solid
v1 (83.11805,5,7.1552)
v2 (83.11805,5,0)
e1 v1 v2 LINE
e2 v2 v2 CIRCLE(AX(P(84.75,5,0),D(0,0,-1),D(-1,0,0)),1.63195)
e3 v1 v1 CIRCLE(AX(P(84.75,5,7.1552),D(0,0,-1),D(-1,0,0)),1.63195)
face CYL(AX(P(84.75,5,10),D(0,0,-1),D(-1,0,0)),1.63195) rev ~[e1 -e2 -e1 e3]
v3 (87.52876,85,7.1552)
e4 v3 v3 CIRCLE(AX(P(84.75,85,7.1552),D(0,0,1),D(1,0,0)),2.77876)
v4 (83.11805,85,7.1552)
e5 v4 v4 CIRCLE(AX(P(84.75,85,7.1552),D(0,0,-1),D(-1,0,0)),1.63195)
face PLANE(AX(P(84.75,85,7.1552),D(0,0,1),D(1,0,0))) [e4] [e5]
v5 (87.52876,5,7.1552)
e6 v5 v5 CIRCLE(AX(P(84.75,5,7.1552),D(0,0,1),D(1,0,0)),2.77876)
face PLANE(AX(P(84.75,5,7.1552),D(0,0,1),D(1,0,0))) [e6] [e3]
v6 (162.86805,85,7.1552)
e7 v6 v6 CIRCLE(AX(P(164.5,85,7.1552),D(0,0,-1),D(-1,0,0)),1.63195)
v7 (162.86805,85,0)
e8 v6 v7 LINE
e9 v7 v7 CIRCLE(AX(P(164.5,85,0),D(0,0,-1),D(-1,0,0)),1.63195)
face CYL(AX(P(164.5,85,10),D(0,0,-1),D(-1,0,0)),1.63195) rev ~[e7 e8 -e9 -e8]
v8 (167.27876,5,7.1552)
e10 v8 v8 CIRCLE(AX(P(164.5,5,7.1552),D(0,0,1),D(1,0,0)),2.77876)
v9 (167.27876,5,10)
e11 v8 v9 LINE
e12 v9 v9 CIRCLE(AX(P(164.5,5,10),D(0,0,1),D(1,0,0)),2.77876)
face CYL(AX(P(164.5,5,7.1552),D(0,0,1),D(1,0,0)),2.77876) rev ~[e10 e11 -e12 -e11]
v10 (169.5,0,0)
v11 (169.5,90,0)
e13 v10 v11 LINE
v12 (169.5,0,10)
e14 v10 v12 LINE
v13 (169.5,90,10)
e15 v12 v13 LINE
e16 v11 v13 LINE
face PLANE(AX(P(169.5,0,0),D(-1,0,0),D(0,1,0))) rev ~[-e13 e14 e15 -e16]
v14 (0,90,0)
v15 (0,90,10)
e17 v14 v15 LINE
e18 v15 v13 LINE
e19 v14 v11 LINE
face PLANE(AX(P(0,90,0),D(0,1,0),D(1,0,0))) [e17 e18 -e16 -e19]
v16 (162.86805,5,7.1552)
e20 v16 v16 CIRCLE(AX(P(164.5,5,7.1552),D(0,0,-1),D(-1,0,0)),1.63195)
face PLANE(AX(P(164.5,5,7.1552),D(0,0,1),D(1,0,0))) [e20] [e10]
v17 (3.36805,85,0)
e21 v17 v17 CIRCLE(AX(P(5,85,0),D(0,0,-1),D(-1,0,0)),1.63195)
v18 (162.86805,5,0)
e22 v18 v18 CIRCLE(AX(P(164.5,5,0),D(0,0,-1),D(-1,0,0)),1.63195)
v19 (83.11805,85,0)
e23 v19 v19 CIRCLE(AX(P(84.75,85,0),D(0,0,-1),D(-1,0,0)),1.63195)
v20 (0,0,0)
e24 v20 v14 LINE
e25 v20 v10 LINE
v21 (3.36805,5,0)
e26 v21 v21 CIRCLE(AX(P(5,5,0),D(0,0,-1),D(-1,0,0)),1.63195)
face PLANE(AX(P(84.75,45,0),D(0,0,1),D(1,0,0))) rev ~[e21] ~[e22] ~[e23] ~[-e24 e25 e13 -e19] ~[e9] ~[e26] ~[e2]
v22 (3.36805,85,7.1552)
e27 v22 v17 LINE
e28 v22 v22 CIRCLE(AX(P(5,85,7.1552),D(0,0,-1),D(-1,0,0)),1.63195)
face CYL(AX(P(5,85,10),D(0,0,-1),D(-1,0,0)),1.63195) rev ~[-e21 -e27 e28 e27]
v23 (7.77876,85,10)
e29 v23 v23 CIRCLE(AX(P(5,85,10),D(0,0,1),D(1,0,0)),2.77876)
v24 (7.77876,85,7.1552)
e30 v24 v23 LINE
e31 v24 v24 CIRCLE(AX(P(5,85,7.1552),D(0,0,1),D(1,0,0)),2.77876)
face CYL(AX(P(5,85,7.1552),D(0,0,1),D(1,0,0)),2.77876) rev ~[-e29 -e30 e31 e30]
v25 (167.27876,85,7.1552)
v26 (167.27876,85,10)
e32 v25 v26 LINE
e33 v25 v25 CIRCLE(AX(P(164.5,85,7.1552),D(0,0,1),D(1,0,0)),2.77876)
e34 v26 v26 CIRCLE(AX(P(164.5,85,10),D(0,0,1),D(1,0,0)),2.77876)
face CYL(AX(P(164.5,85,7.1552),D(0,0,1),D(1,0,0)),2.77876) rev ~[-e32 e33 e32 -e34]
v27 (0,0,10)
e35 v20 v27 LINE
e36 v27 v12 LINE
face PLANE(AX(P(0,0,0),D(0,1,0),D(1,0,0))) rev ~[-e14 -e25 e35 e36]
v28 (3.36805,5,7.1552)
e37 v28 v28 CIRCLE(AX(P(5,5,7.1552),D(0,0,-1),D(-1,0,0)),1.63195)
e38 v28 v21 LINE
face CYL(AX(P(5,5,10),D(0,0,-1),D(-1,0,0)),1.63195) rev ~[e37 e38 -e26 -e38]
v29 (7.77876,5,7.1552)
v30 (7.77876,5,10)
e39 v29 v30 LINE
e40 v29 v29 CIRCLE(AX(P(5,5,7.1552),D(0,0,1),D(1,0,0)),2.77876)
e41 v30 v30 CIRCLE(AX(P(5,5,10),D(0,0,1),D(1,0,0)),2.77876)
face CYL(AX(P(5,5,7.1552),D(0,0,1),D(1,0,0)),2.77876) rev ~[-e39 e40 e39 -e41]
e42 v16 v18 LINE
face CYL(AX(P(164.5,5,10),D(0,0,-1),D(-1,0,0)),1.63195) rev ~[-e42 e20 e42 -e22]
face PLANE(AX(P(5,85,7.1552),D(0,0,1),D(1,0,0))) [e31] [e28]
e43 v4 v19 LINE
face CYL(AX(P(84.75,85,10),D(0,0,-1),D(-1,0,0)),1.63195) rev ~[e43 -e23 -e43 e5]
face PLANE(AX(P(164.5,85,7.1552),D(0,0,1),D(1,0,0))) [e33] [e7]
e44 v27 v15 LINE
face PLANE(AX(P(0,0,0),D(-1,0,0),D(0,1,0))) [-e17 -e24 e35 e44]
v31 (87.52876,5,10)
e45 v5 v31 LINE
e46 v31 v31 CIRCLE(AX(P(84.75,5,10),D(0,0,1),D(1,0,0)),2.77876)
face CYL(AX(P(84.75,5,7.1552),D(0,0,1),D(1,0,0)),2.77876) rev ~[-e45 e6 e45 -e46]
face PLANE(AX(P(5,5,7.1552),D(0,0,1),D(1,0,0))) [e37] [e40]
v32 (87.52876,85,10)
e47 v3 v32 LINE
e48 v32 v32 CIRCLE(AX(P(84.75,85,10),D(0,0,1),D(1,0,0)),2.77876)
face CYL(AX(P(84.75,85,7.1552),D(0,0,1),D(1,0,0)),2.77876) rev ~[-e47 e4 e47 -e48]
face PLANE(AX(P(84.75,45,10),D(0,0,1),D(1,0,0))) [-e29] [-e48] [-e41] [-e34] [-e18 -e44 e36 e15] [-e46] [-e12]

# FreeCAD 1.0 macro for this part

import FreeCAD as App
import Part
import Sketcher
from FreeCAD import Vector


def add_polygon(sketch, points):
    """Adds a closed chain of lines whose ends are joined by coincident constraints."""
    first, n = sketch.GeometryCount, len(points)
    for a, b in zip(points, points[1:] + points[:1]):
        sketch.addGeometry(Part.LineSegment(App.Vector(*a, 0), App.Vector(*b, 0)), False)
    for i in range(n):
        sketch.addConstraint(Sketcher.Constraint("Coincident", first + i, 2, first + (i + 1) % n, 1))

doc = App.newDocument("Part")
body = doc.addObject("PartDesign::Body", "Body")

# Sketch on XY plane
sketch1 = body.newObject("Sketcher::SketchObject", "Sketch")
sketch1.AttachmentSupport = (doc.getObject("XY_Plane"), [""])
sketch1.MapMode = "FlatFace"
add_polygon(sketch1, [(0, 90), (0, 0), (169.5, 0), (169.5, 90)])  # lines 0-3
sketch1.addConstraint([
    Sketcher.Constraint("Vertical", 0),
    Sketcher.Constraint("Horizontal", 1),
    Sketcher.Constraint("Vertical", 2),
    Sketcher.Constraint("Horizontal", 3),
    Sketcher.Constraint("Coincident", 0, 2, -1, 1),
    Sketcher.Constraint("DistanceY", 0, 2, 0, 1, 90.0),
    Sketcher.Constraint("DistanceX", 1, 1, 1, 2, 169.5),
])
pad1 = body.newObject("PartDesign::Pad", "Pad")
pad1.Profile = sketch1
pad1.Length = 10

# Sketch on XY plane
sketch2 = body.newObject("Sketcher::SketchObject", "Sketch001")
sketch2.AttachmentSupport = (doc.getObject("XY_Plane"), [""])
sketch2.MapMode = "FlatFace"
sketch2.AttachmentOffset = App.Placement(Vector(0, 0, 10), App.Rotation())
sketch2.addGeometry([
    Part.Circle(Vector(5, 85, 0), Vector(0, 0, 1), 1.63195),  # 0
    Part.Circle(Vector(164.5, 85, 0), Vector(0, 0, 1), 1.63195),  # 1
    Part.Circle(Vector(164.5, 5, 0), Vector(0, 0, 1), 1.63195),  # 2
    Part.Circle(Vector(5, 5, 0), Vector(0, 0, 1), 1.63195),  # 3
    Part.Circle(Vector(84.75, 5, 0), Vector(0, 0, 1), 1.63195),  # 4
    Part.Circle(Vector(84.75, 85, 0), Vector(0, 0, 1), 1.63195),  # 5
], False)
sketch2.addConstraint([
    Sketcher.Constraint("Equal", 0, 1),
    Sketcher.Constraint("Equal", 1, 2),
    Sketcher.Constraint("Equal", 2, 3),
    Sketcher.Constraint("Equal", 3, 4),
    Sketcher.Constraint("Equal", 4, 5),
    Sketcher.Constraint("Horizontal", 0, 3, 1, 3),
    Sketcher.Constraint("Horizontal", 2, 3, 3, 3),
    Sketcher.Constraint("Horizontal", 3, 3, 4, 3),
    Sketcher.Constraint("Horizontal", 1, 3, 5, 3),
    Sketcher.Constraint("Vertical", 1, 3, 2, 3),
    Sketcher.Constraint("Vertical", 0, 3, 3, 3),
    Sketcher.Constraint("Vertical", 4, 3, 5, 3),
    Sketcher.Constraint("DistanceX", -1, 1, 0, 3, 5.0),
    Sketcher.Constraint("DistanceY", -1, 1, 0, 3, 85.0),
    Sketcher.Constraint("DistanceY", -1, 1, 2, 3, 5.0),
    Sketcher.Constraint("Diameter", 0, 3.2639),
    Sketcher.Constraint("DistanceX", -1, 1, 1, 3, 164.5),
    Sketcher.Constraint("DistanceX", -1, 1, 4, 3, 84.75),
])
doc.recompute()
hole = body.newObject("PartDesign::Hole", "Hole")
hole.Profile = sketch2
hole.ThreadType = "None"
hole.Diameter = 3.2639
hole.DepthType = "ThroughAll"
hole.HoleCutType = "Counterbore"
hole.HoleCutDiameter = 5.55752
hole.HoleCutDepth = 2.8448

doc.recompute()
